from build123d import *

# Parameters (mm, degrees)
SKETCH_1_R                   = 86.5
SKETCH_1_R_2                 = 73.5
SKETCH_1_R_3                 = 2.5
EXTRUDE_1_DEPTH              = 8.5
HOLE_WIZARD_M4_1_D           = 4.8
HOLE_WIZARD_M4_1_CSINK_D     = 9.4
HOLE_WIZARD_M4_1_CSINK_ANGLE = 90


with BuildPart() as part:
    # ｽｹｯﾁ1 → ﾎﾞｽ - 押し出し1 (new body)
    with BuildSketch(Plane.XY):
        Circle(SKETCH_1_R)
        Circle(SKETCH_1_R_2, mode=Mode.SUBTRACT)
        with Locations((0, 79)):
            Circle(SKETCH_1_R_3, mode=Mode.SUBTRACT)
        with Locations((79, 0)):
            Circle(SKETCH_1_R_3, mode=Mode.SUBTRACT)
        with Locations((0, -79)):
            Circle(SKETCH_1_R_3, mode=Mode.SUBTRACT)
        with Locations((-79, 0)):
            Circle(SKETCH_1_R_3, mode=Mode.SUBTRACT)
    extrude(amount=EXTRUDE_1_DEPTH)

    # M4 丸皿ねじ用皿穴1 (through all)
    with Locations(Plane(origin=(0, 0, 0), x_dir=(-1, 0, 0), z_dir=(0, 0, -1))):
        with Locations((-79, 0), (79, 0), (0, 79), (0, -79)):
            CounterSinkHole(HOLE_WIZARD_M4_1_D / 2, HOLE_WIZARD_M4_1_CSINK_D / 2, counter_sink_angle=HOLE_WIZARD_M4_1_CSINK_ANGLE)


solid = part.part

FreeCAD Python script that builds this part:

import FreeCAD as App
import Part
import Sketcher

V = App.Vector

doc = App.newDocument("Part")
body = doc.addObject("PartDesign::Body", "Body")

# Sketch on XY plane
sketch1 = body.newObject("Sketcher::SketchObject", "Sketch")
sketch1.AttachmentSupport = (doc.getObject("XY_Plane"), [""])
sketch1.MapMode = "FlatFace"
sketch1.addGeometry(Part.Circle(V(0, 0, 0), V(0, 0, 1), 86.5), False)
sketch1.addGeometry(Part.Circle(V(0, -79, 0), V(0, 0, 1), 2.5), False)
sketch1.addGeometry(Part.Circle(V(-79, 0, 0), V(0, 0, 1), 2.5), False)
sketch1.addGeometry(Part.Circle(V(0, 0, 0), V(0, 0, 1), 73.5), False)
sketch1.addGeometry(Part.Circle(V(79, 0, 0), V(0, 0, 1), 2.5), False)
sketch1.addGeometry(Part.Circle(V(0, 79, 0), V(0, 0, 1), 2.5), False)
sketch1.addConstraint(Sketcher.Constraint("Coincident", 0, 3, -1, 1))
sketch1.addConstraint(Sketcher.Constraint("Coincident", 3, 3, -1, 1))
sketch1.addConstraint(Sketcher.Constraint("Equal", 1, 2))
sketch1.addConstraint(Sketcher.Constraint("Equal", 2, 4))
sketch1.addConstraint(Sketcher.Constraint("Equal", 4, 5))
sketch1.addConstraint(Sketcher.Constraint("Symmetric", 2, 3, 4, 3, -1, 1))
sketch1.addConstraint(Sketcher.Constraint("Symmetric", 1, 3, 5, 3, -1, 1))
sketch1.addConstraint(Sketcher.Constraint("PointOnObject", 1, 3, -2))
sketch1.addConstraint(Sketcher.Constraint("PointOnObject", 2, 3, -1))
sketch1.addConstraint(Sketcher.Constraint("Diameter", 0, 173.0))
sketch1.addConstraint(Sketcher.Constraint("Diameter", 1, 5.0))
sketch1.addConstraint(Sketcher.Constraint("Diameter", 3, 147.0))
sketch1.addConstraint(Sketcher.Constraint("DistanceY", 1, 3, -1, 1, 79.0))
sketch1.addConstraint(Sketcher.Constraint("DistanceX", 2, 3, -1, 1, 79.0))
pad1 = body.newObject("PartDesign::Pad", "Pad")
pad1.Profile = sketch1
pad1.Length = 8.5

# Sketch on XY plane
sketch2 = body.newObject("Sketcher::SketchObject", "Sketch001")
sketch2.AttachmentSupport = (doc.getObject("XY_Plane"), [""])
sketch2.MapMode = "FlatFace"
sketch2.addGeometry(Part.Circle(V(79, 0, 0), V(0, 0, 1), 2.4), False)
sketch2.addGeometry(Part.Circle(V(-79, 0, 0), V(0, 0, 1), 2.4), False)
sketch2.addGeometry(Part.Circle(V(0, 79, 0), V(0, 0, 1), 2.4), False)
sketch2.addGeometry(Part.Circle(V(0, -79, 0), V(0, 0, 1), 2.4), False)
sketch2.addConstraint(Sketcher.Constraint("Equal", 0, 1))
sketch2.addConstraint(Sketcher.Constraint("Equal", 1, 2))
sketch2.addConstraint(Sketcher.Constraint("Equal", 2, 3))
sketch2.addConstraint(Sketcher.Constraint("Symmetric", 0, 3, 1, 3, -1, 1))
sketch2.addConstraint(Sketcher.Constraint("Symmetric", 2, 3, 3, 3, -1, 1))
sketch2.addConstraint(Sketcher.Constraint("PointOnObject", 0, 3, -1))
sketch2.addConstraint(Sketcher.Constraint("PointOnObject", 2, 3, -2))
sketch2.addConstraint(Sketcher.Constraint("Diameter", 0, 4.8))
sketch2.addConstraint(Sketcher.Constraint("DistanceX", -1, 1, 0, 3, 79.0))
sketch2.addConstraint(Sketcher.Constraint("DistanceY", -1, 1, 2, 3, 79.0))
doc.recompute()
hole = body.newObject("PartDesign::Hole", "Hole")
hole.Profile = sketch2
hole.ThreadType = "None"
hole.Diameter = 4.8
hole.DepthType = "ThroughAll"
hole.HoleCutType = "Countersink"
hole.HoleCutDiameter = 9.4
hole.HoleCutCountersinkAngle = 90
hole.Reversed = True

doc.recompute()
